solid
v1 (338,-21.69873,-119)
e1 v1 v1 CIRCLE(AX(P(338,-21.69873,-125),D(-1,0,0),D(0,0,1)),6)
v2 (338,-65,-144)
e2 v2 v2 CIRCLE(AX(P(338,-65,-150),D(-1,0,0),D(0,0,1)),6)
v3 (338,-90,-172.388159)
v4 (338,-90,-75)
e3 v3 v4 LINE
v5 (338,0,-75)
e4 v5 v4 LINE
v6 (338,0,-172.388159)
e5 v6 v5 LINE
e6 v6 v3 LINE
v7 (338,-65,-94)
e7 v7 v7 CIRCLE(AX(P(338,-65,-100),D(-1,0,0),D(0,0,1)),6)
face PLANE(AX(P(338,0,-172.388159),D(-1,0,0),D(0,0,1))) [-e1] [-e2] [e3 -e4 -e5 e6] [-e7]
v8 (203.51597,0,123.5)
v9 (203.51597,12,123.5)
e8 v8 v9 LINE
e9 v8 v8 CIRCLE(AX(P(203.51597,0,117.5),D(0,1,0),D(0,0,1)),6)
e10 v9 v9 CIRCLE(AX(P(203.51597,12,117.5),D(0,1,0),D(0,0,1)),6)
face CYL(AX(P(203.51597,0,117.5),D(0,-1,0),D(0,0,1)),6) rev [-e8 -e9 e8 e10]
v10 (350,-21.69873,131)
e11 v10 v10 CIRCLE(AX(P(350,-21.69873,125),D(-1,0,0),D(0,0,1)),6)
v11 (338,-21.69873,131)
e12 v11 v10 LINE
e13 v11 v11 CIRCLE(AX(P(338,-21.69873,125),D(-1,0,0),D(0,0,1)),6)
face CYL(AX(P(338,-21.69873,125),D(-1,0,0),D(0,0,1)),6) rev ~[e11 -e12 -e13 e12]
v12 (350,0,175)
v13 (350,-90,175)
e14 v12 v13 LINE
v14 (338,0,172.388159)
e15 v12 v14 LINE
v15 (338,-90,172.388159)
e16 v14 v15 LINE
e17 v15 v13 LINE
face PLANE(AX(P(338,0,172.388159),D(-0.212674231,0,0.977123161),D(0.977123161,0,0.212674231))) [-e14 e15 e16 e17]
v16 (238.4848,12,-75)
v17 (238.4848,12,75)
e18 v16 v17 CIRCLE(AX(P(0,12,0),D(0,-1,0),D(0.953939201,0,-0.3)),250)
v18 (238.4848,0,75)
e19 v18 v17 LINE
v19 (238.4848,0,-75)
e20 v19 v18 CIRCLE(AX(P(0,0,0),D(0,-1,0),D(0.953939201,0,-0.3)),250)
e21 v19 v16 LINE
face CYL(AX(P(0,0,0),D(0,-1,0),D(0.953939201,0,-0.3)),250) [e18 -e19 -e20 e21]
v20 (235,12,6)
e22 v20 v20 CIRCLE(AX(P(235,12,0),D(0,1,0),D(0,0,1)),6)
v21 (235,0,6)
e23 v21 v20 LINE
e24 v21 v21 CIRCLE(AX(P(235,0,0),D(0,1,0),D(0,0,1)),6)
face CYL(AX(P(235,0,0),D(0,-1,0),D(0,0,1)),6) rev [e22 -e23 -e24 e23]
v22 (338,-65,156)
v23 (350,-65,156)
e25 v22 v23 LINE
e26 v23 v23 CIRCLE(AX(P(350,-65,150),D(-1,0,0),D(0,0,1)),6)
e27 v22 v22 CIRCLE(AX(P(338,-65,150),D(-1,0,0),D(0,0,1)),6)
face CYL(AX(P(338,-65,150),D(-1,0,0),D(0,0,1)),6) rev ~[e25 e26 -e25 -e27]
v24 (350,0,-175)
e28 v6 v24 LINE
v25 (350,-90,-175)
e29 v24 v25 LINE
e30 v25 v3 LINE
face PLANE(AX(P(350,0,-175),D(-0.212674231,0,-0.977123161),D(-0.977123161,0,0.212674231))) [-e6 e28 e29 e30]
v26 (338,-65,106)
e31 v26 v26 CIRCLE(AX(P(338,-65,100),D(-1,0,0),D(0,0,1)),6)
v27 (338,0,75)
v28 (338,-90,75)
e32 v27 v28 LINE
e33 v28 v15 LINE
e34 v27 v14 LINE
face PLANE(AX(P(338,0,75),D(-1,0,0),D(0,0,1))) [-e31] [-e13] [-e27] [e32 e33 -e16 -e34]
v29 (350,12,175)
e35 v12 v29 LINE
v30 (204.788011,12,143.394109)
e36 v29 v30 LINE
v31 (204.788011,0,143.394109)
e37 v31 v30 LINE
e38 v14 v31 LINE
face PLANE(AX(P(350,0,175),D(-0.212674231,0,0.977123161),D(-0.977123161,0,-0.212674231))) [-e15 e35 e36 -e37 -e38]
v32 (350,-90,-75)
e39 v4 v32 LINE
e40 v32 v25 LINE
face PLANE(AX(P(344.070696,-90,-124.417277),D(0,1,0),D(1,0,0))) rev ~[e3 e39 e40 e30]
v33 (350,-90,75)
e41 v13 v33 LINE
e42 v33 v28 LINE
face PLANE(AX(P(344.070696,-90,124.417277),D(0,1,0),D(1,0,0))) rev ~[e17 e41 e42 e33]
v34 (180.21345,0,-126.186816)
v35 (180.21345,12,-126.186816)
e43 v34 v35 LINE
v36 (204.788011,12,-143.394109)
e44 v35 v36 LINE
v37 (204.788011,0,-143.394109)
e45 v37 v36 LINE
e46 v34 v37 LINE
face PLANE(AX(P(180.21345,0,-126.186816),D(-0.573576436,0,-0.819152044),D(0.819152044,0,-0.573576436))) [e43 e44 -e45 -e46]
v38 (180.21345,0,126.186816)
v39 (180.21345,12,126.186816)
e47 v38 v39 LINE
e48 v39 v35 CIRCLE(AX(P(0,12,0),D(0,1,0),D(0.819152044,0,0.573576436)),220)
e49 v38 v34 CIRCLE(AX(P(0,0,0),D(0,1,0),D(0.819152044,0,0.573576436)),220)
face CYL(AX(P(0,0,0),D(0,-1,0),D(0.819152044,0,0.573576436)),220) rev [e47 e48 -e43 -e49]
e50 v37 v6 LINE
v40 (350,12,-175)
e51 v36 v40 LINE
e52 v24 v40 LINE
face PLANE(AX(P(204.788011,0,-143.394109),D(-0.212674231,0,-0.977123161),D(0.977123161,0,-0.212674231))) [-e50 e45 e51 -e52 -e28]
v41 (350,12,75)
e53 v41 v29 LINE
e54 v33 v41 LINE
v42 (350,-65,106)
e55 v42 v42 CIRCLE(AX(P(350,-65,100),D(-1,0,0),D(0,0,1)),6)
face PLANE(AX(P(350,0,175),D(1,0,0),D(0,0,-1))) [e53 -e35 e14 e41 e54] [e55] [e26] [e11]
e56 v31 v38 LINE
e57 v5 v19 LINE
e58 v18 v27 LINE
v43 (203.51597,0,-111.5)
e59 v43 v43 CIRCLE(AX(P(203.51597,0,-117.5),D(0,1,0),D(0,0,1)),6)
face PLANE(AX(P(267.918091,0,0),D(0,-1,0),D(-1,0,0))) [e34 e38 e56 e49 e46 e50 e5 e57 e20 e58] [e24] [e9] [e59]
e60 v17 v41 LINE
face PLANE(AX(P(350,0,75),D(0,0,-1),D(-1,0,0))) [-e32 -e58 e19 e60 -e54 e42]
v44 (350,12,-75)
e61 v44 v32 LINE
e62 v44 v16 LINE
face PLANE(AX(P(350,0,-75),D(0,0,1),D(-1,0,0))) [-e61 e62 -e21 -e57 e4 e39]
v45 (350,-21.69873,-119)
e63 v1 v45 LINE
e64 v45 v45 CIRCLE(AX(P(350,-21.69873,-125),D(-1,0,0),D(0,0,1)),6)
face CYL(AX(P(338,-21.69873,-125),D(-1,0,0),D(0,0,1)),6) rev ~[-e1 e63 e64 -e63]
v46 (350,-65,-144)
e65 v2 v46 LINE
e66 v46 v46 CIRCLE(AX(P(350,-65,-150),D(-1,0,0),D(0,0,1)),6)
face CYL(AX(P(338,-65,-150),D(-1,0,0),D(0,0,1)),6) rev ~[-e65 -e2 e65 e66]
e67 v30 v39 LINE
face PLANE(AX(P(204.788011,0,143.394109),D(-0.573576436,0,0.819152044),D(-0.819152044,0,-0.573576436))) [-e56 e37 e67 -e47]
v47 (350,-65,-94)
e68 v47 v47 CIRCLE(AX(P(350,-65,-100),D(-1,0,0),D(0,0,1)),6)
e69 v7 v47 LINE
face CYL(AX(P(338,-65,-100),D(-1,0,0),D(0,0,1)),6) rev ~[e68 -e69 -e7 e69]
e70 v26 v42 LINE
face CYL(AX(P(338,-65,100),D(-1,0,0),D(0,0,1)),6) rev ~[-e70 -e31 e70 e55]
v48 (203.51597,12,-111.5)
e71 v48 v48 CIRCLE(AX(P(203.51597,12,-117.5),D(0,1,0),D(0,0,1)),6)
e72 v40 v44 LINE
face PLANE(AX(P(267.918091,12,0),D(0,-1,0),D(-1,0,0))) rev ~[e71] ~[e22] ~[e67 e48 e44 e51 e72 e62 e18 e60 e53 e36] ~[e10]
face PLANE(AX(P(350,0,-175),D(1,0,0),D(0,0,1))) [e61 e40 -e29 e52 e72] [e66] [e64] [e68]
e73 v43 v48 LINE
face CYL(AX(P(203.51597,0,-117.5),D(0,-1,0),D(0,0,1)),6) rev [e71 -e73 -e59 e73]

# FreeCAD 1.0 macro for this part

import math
import FreeCAD as App
import Part
import Sketcher
Q = App.Units.Quantity


def add_polygon(sketch, points):
    """Adds a closed chain of lines whose ends are joined by coincident constraints."""
    first, n = sketch.GeometryCount, len(points)
    for a, b in zip(points, points[1:] + points[:1]):
        sketch.addGeometry(Part.LineSegment(App.Vector(*a, 0), App.Vector(*b, 0)), False)
    for i in range(n):
        sketch.addConstraint(Sketcher.Constraint("Coincident", first + i, 2, first + (i + 1) % n, 1))

doc = App.newDocument("Part")
body = doc.addObject("PartDesign::Body", "Body")

sketch1 = body.newObject("Sketcher::SketchObject", "Sketch")
sketch1.AttachmentSupport = (doc.getObject("XZ_Plane"), [""])
sketch1.MapMode = "FlatFace"
sketch1.addGeometry(Part.LineSegment(App.Vector(350, -75, 0), App.Vector(350, -175, 0)), False)
sketch1.addGeometry(Part.LineSegment(App.Vector(350, -175, 0), App.Vector(205, -143, 0)), False)
sketch1.addGeometry(Part.LineSegment(App.Vector(205, -143, 0), App.Vector(180, -126, 0)), False)
sketch1.addGeometry(Part.ArcOfCircle(Part.Circle(App.Vector(0, 0, 0), App.Vector(0, 0, 1), 220), math.radians(-35), math.radians(35)), False)
sketch1.addGeometry(Part.LineSegment(App.Vector(180, 126, 0), App.Vector(205, 143, 0)), False)
sketch1.addGeometry(Part.LineSegment(App.Vector(205, 143, 0), App.Vector(350, 175, 0)), False)
sketch1.addGeometry(Part.LineSegment(App.Vector(350, 175, 0), App.Vector(350, 75, 0)), False)
sketch1.addGeometry(Part.LineSegment(App.Vector(350, 75, 0), App.Vector(238, 75, 0)), False)
sketch1.addGeometry(Part.ArcOfCircle(Part.Circle(App.Vector(0, 0, 0), App.Vector(0, 0, 1), 250), math.radians(-17), math.radians(17)), False)
sketch1.addGeometry(Part.LineSegment(App.Vector(238, -75, 0), App.Vector(350, -75, 0)), False)
sketch1.addGeometry(Part.Circle(App.Vector(204, 118, 0), App.Vector(0, 0, 1), 6), False)
sketch1.addGeometry(Part.Circle(App.Vector(235, 0, 0), App.Vector(0, 0, 1), 6), False)
sketch1.addGeometry(Part.Circle(App.Vector(204, -118, 0), App.Vector(0, 0, 1), 6), False)
sketch1.addConstraint(Sketcher.Constraint("Coincident", 0, 2, 1, 1))
sketch1.addConstraint(Sketcher.Constraint("Coincident", 1, 2, 2, 1))
sketch1.addConstraint(Sketcher.Constraint("Coincident", 2, 2, 3, 1))
sketch1.addConstraint(Sketcher.Constraint("Coincident", 3, 2, 4, 1))
sketch1.addConstraint(Sketcher.Constraint("Coincident", 4, 2, 5, 1))
sketch1.addConstraint(Sketcher.Constraint("Coincident", 5, 2, 6, 1))
sketch1.addConstraint(Sketcher.Constraint("Coincident", 6, 2, 7, 1))
sketch1.addConstraint(Sketcher.Constraint("Coincident", 7, 2, 8, 2))
sketch1.addConstraint(Sketcher.Constraint("Coincident", 8, 1, 9, 1))
sketch1.addConstraint(Sketcher.Constraint("Coincident", 9, 2, 0, 1))
sketch1.addConstraint(Sketcher.Constraint("Vertical", 0))
sketch1.addConstraint(Sketcher.Constraint("Vertical", 6))
sketch1.addConstraint(Sketcher.Constraint("Horizontal", 7))
sketch1.addConstraint(Sketcher.Constraint("Horizontal", 9))
sketch1.addConstraint(Sketcher.Constraint("Coincident", 3, 3, -1, 1))
sketch1.addConstraint(Sketcher.Constraint("Coincident", 8, 3, -1, 1))
sketch1.addConstraint(Sketcher.Constraint("Equal", 10, 11))
sketch1.addConstraint(Sketcher.Constraint("Equal", 11, 12))
sketch1.addConstraint(Sketcher.Constraint("Symmetric", 10, 3, 12, 3, -1))
sketch1.addConstraint(Sketcher.Constraint("Symmetric", 1, 2, 4, 2, -1))
sketch1.addConstraint(Sketcher.Constraint("Symmetric", 0, 2, 5, 2, -1))
sketch1.addConstraint(Sketcher.Constraint("PointOnObject", 11, 3, -1))
sketch1.addConstraint(Sketcher.Constraint("Vertical", 2, 2, 3, 2))
sketch1.addConstraint(Sketcher.Constraint("Vertical", 7, 2, 8, 1))
sketch1.addConstraint(Sketcher.Constraint("Diameter", 10, Q("12 mm")))
sketch1.addConstraint(Sketcher.Constraint("Radius", 3, Q("220 mm")))
sketch1.addConstraint(Sketcher.Constraint("Radius", 8, Q("250 mm")))
sketch1.addConstraint(Sketcher.Constraint("DistanceY", 0, 2, 0, 1, Q("100 mm")))
sketch1.addConstraint(Sketcher.Constraint("Angle", 2, Q("145 deg")))
sketch1.addConstraint(Sketcher.Constraint("Distance", 2, Q("30 mm")))
sketch1.addConstraint(Sketcher.Constraint("DistanceX", -1, 1, 11, 3, Q("235 mm")))
sketch1.addConstraint(Sketcher.Constraint("DistanceX", -1, 1, 0, 2, Q("350 mm")))
sketch1.addConstraint(Sketcher.Constraint("DistanceY", 0, 2, -1, 1, Q("175 mm")))
sketch1.addConstraint(Sketcher.Constraint("DistanceY", 12, 3, 10, 3, Q("235 mm")))
sketch1.addConstraint(Sketcher.Constraint("DistanceX", -1, 1, 10, 3, Q("203.51597 mm")))
sketch1.addConstraint(Sketcher.Constraint("DistanceX", -1, 1, 1, 2, Q("204.788011 mm")))
pad1 = body.newObject("PartDesign::Pad", "Pad")
pad1.Profile = sketch1
pad1.Length = 12
pad1.Reversed = True

sketch2 = body.newObject("Sketcher::SketchObject", "Sketch001")
sketch2.AttachmentSupport = (doc.getObject("XZ_Plane"), [""])
sketch2.MapMode = "FlatFace"
add_polygon(sketch2, [(350, 75), (350, 175), (338, 172), (338, 75)])
add_polygon(sketch2, [(350, -175), (350, -75), (338, -75), (338, -172)])
sketch2.addConstraint(Sketcher.Constraint("Vertical", 0))
sketch2.addConstraint(Sketcher.Constraint("Vertical", 2))
sketch2.addConstraint(Sketcher.Constraint("Horizontal", 3))
sketch2.addConstraint(Sketcher.Constraint("Vertical", 4))
sketch2.addConstraint(Sketcher.Constraint("Horizontal", 5))
sketch2.addConstraint(Sketcher.Constraint("Vertical", 6))
sketch2.addConstraint(Sketcher.Constraint("Symmetric", 3, 2, 4, 2, -1))
sketch2.addConstraint(Sketcher.Constraint("Symmetric", 1, 2, 6, 2, -1))
sketch2.addConstraint(Sketcher.Constraint("Equal", 0, 4))
sketch2.addConstraint(Sketcher.Constraint("DistanceX", 3, 1, 3, 2, Q("12 mm")))
sketch2.addConstraint(Sketcher.Constraint("DistanceY", 0, 1, 0, 2, Q("100 mm")))
sketch2.addConstraint(Sketcher.Constraint("DistanceX", -1, 1, 0, 2, Q("350 mm")))
sketch2.addConstraint(Sketcher.Constraint("DistanceY", -1, 1, 0, 2, Q("175 mm")))
sketch2.addConstraint(Sketcher.Constraint("DistanceY", 2, 2, 2, 1, Q("97.388159 mm")))
pad2 = body.newObject("PartDesign::Pad", "Pad001")
pad2.Profile = sketch2
pad2.Length = 90

sketch3 = body.newObject("Sketcher::SketchObject", "Sketch002")
sketch3.AttachmentSupport = (doc.getObject("YZ_Plane"), [""])
sketch3.MapMode = "FlatFace"
sketch3.AttachmentOffset = App.Placement(App.Vector(0, 0, 338), App.Rotation())
sketch3.addGeometry(Part.Circle(App.Vector(-65, -150, 0), App.Vector(0, 0, 1), 6), False)
sketch3.addGeometry(Part.Circle(App.Vector(-65, -100, 0), App.Vector(0, 0, 1), 6), False)
sketch3.addGeometry(Part.Circle(App.Vector(-22, -125, 0), App.Vector(0, 0, 1), 6), False)
sketch3.addGeometry(Part.Circle(App.Vector(-65, 150, 0), App.Vector(0, 0, 1), 6), False)
sketch3.addGeometry(Part.Circle(App.Vector(-22, 125, 0), App.Vector(0, 0, 1), 6), False)
sketch3.addGeometry(Part.Circle(App.Vector(-65, 100, 0), App.Vector(0, 0, 1), 6), False)
sketch3.addConstraint(Sketcher.Constraint("Equal", 0, 1))
sketch3.addConstraint(Sketcher.Constraint("Equal", 1, 2))
sketch3.addConstraint(Sketcher.Constraint("Equal", 2, 3))
sketch3.addConstraint(Sketcher.Constraint("Equal", 3, 4))
sketch3.addConstraint(Sketcher.Constraint("Equal", 4, 5))
sketch3.addConstraint(Sketcher.Constraint("Symmetric", 0, 3, 3, 3, -1))
sketch3.addConstraint(Sketcher.Constraint("Symmetric", 2, 3, 4, 3, -1))
sketch3.addConstraint(Sketcher.Constraint("Symmetric", 1, 3, 5, 3, -1))
sketch3.addConstraint(Sketcher.Constraint("Vertical", 0, 3, 1, 3))
sketch3.addConstraint(Sketcher.Constraint("Diameter", 0, Q("12 mm")))
sketch3.addConstraint(Sketcher.Constraint("DistanceX", 0, 3, -1, 1, Q("65 mm")))
sketch3.addConstraint(Sketcher.Constraint("DistanceY", 0, 3, -1, 1, Q("150 mm")))
sketch3.addConstraint(Sketcher.Constraint("DistanceY", 1, 3, -1, 1, Q("100 mm")))
sketch3.addConstraint(Sketcher.Constraint("DistanceY", 2, 3, -1, 1, Q("125 mm")))
sketch3.addConstraint(Sketcher.Constraint("DistanceX", 2, 3, -1, 1, Q("21.69873 mm")))
pocket1 = body.newObject("PartDesign::Pocket", "Pocket")
pocket1.Profile = sketch3
pocket1.Type = "ThroughAll"
pocket1.Reversed = True

doc.recompute()
